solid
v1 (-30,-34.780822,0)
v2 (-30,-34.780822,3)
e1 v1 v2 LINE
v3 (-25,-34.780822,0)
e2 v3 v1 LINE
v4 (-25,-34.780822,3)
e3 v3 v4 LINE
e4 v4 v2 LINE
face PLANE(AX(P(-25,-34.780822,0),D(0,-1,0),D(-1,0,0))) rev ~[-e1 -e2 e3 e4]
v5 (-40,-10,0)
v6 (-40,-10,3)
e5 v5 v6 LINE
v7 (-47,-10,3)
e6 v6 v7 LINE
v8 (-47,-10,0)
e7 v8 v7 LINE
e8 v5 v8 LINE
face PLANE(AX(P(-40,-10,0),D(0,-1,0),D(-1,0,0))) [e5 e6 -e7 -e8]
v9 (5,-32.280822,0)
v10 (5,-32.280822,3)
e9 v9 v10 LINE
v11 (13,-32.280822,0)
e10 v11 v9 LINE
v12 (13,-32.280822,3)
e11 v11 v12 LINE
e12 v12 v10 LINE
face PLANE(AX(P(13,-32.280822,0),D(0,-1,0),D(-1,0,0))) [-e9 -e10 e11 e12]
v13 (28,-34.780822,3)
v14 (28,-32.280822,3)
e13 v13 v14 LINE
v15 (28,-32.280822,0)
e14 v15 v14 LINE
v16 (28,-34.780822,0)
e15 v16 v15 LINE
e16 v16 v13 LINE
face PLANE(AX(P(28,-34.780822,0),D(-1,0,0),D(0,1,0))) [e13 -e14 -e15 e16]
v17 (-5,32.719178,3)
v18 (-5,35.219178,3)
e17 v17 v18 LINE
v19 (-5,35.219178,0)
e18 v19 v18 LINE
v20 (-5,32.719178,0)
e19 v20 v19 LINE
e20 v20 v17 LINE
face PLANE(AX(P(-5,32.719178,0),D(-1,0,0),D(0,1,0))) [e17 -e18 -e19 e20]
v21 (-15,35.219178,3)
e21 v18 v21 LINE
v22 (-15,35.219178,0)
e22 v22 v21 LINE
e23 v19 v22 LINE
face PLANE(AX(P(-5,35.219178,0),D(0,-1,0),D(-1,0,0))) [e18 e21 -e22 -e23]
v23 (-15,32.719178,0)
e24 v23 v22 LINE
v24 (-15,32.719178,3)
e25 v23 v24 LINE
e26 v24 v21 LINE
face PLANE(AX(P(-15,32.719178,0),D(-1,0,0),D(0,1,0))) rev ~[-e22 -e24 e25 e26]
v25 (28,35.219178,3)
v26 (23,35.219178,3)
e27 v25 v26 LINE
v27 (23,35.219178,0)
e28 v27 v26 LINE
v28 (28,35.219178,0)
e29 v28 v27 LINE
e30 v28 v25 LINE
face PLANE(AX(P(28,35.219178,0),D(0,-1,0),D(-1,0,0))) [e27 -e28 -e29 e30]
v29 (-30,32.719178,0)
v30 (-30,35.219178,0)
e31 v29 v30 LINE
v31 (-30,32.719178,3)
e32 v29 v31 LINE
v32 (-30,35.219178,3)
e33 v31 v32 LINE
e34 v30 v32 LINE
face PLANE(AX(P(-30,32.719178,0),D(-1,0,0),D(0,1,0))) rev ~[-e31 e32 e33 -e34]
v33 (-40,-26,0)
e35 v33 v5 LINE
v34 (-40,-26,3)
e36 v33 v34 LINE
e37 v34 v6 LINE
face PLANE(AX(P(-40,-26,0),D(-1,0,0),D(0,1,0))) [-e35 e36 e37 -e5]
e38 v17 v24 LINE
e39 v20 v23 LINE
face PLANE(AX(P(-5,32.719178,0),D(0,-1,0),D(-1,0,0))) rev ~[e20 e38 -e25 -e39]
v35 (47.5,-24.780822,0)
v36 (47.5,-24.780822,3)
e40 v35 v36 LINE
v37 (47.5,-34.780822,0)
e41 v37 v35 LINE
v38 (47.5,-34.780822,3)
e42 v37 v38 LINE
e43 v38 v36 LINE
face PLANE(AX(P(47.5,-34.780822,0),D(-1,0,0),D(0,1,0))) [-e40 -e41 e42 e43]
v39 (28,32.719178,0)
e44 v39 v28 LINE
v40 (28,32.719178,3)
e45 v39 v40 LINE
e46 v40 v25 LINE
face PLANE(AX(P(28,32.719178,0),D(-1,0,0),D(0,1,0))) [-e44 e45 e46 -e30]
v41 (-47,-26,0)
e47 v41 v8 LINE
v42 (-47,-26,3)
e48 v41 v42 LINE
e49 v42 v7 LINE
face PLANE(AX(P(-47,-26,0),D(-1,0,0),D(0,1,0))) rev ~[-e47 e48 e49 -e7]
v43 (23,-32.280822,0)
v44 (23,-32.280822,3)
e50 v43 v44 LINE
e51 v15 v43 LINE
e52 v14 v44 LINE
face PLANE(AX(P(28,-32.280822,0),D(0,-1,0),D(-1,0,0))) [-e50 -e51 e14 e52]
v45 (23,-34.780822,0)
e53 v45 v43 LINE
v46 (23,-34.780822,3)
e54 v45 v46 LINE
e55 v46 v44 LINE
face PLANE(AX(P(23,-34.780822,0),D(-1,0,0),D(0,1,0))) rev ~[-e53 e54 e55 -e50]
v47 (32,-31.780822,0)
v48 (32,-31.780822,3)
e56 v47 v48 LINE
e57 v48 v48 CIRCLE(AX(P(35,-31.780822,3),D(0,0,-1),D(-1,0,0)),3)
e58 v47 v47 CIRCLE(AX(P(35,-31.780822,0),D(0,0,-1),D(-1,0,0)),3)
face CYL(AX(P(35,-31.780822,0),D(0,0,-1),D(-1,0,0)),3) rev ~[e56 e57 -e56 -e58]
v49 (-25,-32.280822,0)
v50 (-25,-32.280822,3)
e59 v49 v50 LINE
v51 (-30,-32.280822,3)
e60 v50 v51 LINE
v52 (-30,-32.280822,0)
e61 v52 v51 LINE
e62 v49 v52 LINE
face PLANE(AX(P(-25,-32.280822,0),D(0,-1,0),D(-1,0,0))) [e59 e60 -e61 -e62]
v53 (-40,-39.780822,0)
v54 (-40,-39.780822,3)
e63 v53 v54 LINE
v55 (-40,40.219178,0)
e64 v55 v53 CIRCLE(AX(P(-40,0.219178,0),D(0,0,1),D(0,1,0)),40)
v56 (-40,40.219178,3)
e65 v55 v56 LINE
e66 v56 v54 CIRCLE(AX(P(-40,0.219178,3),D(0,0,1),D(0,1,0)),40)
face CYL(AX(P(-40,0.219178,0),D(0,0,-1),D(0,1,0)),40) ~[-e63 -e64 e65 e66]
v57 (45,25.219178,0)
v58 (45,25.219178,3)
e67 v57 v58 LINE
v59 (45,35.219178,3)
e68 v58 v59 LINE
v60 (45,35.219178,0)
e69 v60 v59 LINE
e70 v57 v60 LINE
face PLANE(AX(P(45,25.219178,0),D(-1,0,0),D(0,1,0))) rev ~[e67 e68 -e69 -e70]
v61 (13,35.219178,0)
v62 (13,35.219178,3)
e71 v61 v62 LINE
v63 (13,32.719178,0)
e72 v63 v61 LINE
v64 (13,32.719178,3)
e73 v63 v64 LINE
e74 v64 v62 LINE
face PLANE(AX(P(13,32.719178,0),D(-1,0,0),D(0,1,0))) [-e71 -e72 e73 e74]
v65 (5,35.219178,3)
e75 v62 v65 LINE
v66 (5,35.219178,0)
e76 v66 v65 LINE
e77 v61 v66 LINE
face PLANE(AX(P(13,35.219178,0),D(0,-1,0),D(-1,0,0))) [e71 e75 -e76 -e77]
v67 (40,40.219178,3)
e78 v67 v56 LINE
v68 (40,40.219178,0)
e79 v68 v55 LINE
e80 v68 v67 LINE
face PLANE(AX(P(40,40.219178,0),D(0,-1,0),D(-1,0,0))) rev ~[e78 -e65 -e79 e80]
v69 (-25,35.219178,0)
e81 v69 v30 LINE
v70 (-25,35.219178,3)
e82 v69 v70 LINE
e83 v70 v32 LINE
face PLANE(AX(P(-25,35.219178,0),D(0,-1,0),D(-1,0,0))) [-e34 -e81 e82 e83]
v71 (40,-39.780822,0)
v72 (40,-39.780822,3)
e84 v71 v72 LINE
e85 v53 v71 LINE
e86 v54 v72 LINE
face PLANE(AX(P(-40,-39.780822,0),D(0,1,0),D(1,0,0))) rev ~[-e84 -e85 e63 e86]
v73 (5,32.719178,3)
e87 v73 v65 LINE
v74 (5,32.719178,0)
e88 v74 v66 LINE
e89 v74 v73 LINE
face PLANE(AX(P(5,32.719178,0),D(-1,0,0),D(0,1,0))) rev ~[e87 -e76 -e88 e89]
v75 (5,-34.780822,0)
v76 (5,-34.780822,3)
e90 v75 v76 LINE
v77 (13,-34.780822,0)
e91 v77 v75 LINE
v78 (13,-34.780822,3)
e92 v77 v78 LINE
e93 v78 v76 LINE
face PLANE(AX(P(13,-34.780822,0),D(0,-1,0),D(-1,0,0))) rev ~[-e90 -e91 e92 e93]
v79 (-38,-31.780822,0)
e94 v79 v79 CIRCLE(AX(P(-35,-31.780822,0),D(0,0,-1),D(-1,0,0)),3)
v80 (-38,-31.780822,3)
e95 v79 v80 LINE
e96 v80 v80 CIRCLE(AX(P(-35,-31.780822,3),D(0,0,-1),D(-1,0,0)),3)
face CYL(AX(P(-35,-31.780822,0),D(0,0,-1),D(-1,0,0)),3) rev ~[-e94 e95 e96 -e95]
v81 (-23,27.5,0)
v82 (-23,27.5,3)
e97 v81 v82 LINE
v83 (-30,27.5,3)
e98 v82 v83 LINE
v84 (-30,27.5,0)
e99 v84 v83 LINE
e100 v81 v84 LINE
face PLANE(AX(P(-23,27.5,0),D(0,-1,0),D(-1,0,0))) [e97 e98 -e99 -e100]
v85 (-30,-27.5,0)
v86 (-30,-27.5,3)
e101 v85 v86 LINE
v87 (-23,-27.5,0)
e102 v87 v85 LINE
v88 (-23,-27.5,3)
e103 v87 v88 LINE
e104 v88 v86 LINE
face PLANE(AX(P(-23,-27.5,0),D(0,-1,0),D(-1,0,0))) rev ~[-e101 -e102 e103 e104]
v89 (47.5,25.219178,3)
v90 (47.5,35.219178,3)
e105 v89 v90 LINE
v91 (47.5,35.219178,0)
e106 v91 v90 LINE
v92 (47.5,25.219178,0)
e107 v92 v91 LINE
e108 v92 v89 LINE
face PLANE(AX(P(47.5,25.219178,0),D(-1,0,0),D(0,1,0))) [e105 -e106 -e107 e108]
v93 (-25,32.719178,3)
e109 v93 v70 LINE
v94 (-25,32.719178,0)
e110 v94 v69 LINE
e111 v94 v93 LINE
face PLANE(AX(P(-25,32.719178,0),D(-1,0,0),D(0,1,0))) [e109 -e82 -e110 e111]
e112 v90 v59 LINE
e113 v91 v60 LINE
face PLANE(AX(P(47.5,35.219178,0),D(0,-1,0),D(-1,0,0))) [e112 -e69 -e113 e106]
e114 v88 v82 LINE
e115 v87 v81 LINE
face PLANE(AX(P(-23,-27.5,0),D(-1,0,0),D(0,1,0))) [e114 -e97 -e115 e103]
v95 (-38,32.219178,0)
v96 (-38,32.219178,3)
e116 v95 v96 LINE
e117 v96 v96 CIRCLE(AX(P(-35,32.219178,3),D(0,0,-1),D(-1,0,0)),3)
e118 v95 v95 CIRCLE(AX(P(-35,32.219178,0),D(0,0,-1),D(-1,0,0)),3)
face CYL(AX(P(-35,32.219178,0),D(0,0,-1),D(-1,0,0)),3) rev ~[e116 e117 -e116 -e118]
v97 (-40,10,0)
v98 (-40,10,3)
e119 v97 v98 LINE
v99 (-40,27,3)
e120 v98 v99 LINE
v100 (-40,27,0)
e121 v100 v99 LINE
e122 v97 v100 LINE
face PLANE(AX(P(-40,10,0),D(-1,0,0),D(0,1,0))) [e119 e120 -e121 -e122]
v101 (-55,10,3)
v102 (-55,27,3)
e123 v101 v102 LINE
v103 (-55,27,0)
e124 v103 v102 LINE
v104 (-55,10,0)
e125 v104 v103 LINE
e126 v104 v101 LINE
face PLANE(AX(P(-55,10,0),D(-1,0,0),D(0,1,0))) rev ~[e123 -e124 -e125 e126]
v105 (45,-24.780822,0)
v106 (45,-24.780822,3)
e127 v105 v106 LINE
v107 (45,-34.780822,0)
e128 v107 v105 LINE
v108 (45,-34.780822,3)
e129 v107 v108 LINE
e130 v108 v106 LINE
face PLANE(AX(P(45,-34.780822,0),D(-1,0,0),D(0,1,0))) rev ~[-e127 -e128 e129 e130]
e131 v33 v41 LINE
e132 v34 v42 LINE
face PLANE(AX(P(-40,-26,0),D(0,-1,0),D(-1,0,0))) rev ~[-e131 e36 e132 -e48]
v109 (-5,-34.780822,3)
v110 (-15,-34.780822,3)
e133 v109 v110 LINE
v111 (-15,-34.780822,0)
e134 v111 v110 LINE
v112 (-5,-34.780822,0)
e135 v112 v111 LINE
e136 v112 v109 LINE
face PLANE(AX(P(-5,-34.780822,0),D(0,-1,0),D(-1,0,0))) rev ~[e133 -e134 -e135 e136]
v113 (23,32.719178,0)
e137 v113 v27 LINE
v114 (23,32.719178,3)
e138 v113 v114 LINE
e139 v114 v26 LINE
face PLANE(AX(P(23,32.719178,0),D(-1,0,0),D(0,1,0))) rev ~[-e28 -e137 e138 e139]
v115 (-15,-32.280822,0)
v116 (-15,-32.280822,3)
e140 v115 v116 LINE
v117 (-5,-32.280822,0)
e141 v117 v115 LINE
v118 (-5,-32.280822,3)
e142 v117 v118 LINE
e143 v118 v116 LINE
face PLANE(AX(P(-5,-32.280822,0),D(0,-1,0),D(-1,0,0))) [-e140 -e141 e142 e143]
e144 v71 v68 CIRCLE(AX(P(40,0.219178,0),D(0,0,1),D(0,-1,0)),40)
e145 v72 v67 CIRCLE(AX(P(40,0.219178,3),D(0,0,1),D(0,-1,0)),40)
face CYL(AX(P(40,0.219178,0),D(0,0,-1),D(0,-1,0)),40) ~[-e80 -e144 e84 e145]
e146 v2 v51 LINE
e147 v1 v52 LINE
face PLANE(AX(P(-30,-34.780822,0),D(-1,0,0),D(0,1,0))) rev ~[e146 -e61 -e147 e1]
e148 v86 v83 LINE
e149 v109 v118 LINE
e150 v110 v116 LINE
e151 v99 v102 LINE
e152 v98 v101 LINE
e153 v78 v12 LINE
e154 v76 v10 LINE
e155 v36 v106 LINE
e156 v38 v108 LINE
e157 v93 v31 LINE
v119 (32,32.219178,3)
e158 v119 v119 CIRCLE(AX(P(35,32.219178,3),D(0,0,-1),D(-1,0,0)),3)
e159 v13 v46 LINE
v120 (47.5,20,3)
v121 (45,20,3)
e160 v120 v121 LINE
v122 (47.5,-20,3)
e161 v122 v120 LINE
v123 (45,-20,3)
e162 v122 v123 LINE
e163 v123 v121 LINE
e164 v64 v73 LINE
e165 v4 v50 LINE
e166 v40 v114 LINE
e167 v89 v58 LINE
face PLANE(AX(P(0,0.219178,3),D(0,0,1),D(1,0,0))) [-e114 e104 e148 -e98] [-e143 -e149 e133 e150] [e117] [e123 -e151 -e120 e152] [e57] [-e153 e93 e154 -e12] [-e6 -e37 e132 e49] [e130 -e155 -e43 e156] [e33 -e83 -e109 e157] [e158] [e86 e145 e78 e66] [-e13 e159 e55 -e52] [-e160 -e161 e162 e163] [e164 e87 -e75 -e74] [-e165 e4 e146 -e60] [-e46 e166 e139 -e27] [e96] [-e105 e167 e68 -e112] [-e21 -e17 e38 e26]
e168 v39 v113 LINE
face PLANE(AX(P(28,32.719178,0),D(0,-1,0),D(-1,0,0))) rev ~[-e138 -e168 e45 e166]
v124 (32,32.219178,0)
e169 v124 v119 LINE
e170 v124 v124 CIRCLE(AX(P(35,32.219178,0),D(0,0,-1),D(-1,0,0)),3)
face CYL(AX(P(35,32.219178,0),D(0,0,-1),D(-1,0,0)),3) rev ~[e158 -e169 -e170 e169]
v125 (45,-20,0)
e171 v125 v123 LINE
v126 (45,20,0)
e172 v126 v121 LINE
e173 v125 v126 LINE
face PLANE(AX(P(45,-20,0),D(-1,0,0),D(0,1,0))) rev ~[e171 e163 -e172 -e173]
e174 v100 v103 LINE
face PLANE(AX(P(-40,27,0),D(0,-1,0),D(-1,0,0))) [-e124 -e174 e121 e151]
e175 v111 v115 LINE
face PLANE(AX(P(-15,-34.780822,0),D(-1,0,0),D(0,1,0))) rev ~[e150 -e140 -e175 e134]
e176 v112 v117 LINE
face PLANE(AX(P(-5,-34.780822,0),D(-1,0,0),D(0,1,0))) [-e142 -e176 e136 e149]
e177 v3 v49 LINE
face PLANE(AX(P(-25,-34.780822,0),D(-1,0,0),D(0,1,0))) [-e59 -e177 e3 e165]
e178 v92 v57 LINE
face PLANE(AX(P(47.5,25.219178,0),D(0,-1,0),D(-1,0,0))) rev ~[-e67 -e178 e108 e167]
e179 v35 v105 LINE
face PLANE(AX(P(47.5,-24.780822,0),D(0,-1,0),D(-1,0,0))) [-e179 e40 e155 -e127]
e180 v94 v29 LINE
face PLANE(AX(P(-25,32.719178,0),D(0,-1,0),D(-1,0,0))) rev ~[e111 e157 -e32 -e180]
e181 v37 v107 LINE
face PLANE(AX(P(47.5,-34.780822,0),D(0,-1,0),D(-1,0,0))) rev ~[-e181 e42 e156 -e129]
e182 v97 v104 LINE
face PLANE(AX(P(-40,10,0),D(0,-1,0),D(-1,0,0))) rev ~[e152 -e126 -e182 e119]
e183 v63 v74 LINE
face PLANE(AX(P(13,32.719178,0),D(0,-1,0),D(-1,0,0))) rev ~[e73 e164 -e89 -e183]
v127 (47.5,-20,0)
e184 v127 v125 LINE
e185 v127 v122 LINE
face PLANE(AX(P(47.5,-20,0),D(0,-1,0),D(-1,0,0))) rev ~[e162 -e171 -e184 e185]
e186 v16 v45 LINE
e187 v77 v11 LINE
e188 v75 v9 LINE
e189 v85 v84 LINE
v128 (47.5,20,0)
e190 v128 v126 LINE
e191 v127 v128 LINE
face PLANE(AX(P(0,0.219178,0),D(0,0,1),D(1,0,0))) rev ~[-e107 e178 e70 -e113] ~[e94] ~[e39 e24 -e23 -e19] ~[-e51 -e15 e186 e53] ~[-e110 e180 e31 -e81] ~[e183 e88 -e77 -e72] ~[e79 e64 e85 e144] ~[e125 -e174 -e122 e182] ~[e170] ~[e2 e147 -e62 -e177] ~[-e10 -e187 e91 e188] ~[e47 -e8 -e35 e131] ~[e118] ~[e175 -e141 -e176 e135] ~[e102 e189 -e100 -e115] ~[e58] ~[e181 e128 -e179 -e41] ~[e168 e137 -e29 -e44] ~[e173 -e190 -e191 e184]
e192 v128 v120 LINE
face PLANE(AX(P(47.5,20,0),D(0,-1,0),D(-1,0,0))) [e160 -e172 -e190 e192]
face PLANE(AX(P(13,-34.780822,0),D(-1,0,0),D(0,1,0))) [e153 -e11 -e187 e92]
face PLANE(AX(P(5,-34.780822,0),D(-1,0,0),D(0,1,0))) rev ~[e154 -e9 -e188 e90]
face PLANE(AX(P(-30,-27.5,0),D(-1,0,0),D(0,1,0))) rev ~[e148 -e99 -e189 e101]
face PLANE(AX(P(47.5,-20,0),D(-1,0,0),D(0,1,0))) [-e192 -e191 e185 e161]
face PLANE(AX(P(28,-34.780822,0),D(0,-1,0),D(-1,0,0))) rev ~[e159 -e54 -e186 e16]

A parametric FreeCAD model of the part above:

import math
import FreeCAD as App
import Part
import Sketcher
Q = App.Units.Quantity

doc = App.newDocument("Part")
body = doc.addObject("PartDesign::Body", "Body")

sketch1 = body.newObject("Sketcher::SketchObject", "Sketch")
sketch1.AttachmentSupport = (doc.getObject("XY_Plane"), [""])
sketch1.MapMode = "FlatFace"
sketch1.addGeometry([
    Part.LineSegment(App.Vector(40, 40, 0), App.Vector(-40, 40, 0)),
    Part.ArcOfCircle(Part.Circle(App.Vector(-40, 0, 0), App.Vector(0, 0, 1), 40), math.radians(90), math.radians(270)),
    Part.LineSegment(App.Vector(-40, -40, 0), App.Vector(40, -40, 0)),
    Part.ArcOfCircle(Part.Circle(App.Vector(40, 0, 0), App.Vector(0, 0, 1), 40), math.radians(-90), math.radians(90)),
], False)
sketch1.addConstraint([
    Sketcher.Constraint("Tangent", 0, 2, 1, 1),
    Sketcher.Constraint("Tangent", 1, 2, 2, 1),
    Sketcher.Constraint("Tangent", 2, 2, 3, 1),
    Sketcher.Constraint("Tangent", 3, 2, 0, 1),
    Sketcher.Constraint("Horizontal", 0),
    Sketcher.Constraint("Horizontal", 2),
    Sketcher.Constraint("Radius", 1, Q("40 mm")),
    Sketcher.Constraint("DistanceX", 0, 2, 0, 1, Q("80 mm")),
    Sketcher.Constraint("DistanceX", 1, 3, -1, 1, Q("40 mm")),
    Sketcher.Constraint("DistanceY", -1, 1, 1, 3, Q("0.219178 mm")),
])
pad1 = body.newObject("PartDesign::Pad", "Pad")
pad1.Profile = sketch1
pad1.Length = 3

sketch2 = body.newObject("Sketcher::SketchObject", "Sketch001")
sketch2.AttachmentSupport = (doc.getObject("XY_Plane"), [""])
sketch2.MapMode = "FlatFace"
sketch2.addGeometry(Part.Circle(App.Vector(35, 32.2, 0), App.Vector(0, 0, 1), 3), False)
sketch2.addConstraint([
    Sketcher.Constraint("Diameter", 0, Q("6 mm")),
    Sketcher.Constraint("DistanceX", -1, 1, 0, 3, Q("35 mm")),
    Sketcher.Constraint("DistanceY", -1, 1, 0, 3, Q("32.219178 mm")),
])
pocket1 = body.newObject("PartDesign::Pocket", "Pocket")
pocket1.Profile = sketch2
pocket1.Type = "UpToFirst"
pocket1.Reversed = True

sketch3 = body.newObject("Sketcher::SketchObject", "Sketch002")
sketch3.AttachmentSupport = (doc.getObject("XY_Plane"), [""])
sketch3.MapMode = "FlatFace"
sketch3.addGeometry(Part.Circle(App.Vector(35, -31.8, 0), App.Vector(0, 0, 1), 3), False)
sketch3.addConstraint([
    Sketcher.Constraint("Diameter", 0, Q("6 mm")),
    Sketcher.Constraint("DistanceX", -1, 1, 0, 3, Q("35 mm")),
    Sketcher.Constraint("DistanceY", 0, 3, -1, 1, Q("31.780822 mm")),
])
pocket2 = body.newObject("PartDesign::Pocket", "Pocket001")
pocket2.Profile = sketch3
pocket2.Type = "UpToFirst"
pocket2.Reversed = True

sketch4 = body.newObject("Sketcher::SketchObject", "Sketch003")
sketch4.AttachmentSupport = (doc.getObject("XY_Plane"), [""])
sketch4.MapMode = "FlatFace"
sketch4.addGeometry(Part.Circle(App.Vector(-35, 32.2, 0), App.Vector(0, 0, 1), 3), False)
sketch4.addConstraint([
    Sketcher.Constraint("Diameter", 0, Q("6 mm")),
    Sketcher.Constraint("DistanceX", 0, 3, -1, 1, Q("35 mm")),
    Sketcher.Constraint("DistanceY", -1, 1, 0, 3, Q("32.219178 mm")),
])
pocket3 = body.newObject("PartDesign::Pocket", "Pocket002")
pocket3.Profile = sketch4
pocket3.Type = "UpToFirst"
pocket3.Reversed = True

sketch5 = body.newObject("Sketcher::SketchObject", "Sketch004")
sketch5.AttachmentSupport = (doc.getObject("XY_Plane"), [""])
sketch5.MapMode = "FlatFace"
sketch5.addGeometry(Part.Circle(App.Vector(-35, -31.8, 0), App.Vector(0, 0, 1), 3), False)
sketch5.addConstraint([
    Sketcher.Constraint("Diameter", 0, Q("6 mm")),
    Sketcher.Constraint("DistanceX", 0, 3, -1, 1, Q("35 mm")),
    Sketcher.Constraint("DistanceY", 0, 3, -1, 1, Q("31.780822 mm")),
])
pocket4 = body.newObject("PartDesign::Pocket", "Pocket003")
pocket4.Profile = sketch5
pocket4.Type = "UpToFirst"
pocket4.Reversed = True

sketch6 = body.newObject("Sketcher::SketchObject", "Sketch005")
sketch6.AttachmentSupport = (doc.getObject("XY_Plane"), [""])
sketch6.MapMode = "FlatFace"
sketch6.addGeometry([
    Part.LineSegment(App.Vector(-23, 28, 0), App.Vector(-23, -28, 0)),
    Part.LineSegment(App.Vector(-23, -28, 0), App.Vector(-30, -28, 0)),
    Part.LineSegment(App.Vector(-30, -28, 0), App.Vector(-30, 28, 0)),
    Part.LineSegment(App.Vector(-30, 28, 0), App.Vector(-23, 28, 0)),
], False)
sketch6.addConstraint([
    Sketcher.Constraint("Coincident", 0, 2, 1, 1),
    Sketcher.Constraint("Coincident", 1, 2, 2, 1),
    Sketcher.Constraint("Coincident", 2, 2, 3, 1),
    Sketcher.Constraint("Coincident", 3, 2, 0, 1),
    Sketcher.Constraint("Vertical", 0),
    Sketcher.Constraint("Horizontal", 1),
    Sketcher.Constraint("Vertical", 2),
    Sketcher.Constraint("Horizontal", 3),
    Sketcher.Constraint("DistanceX", 1, 2, 1, 1, Q("7 mm")),
    Sketcher.Constraint("DistanceY", 0, 2, 0, 1, Q("55 mm")),
    Sketcher.Constraint("DistanceX", 0, 2, -1, 1, Q("23 mm")),
    Sketcher.Constraint("DistanceY", 0, 2, -1, 1, Q("27.5 mm")),
])
pocket5 = body.newObject("PartDesign::Pocket", "Pocket004")
pocket5.Profile = sketch6
pocket5.Type = "UpToFirst"
pocket5.Reversed = True

sketch7 = body.newObject("Sketcher::SketchObject", "Sketch006")
sketch7.AttachmentSupport = (doc.getObject("XY_Plane"), [""])
sketch7.MapMode = "FlatFace"
sketch7.addGeometry([
    Part.LineSegment(App.Vector(47.5, 20, 0), App.Vector(47.5, -20, 0)),
    Part.LineSegment(App.Vector(47.5, -20, 0), App.Vector(45, -20, 0)),
    Part.LineSegment(App.Vector(45, -20, 0), App.Vector(45, 20, 0)),
    Part.LineSegment(App.Vector(45, 20, 0), App.Vector(47.5, 20, 0)),
], False)
sketch7.addConstraint([
    Sketcher.Constraint("Coincident", 0, 2, 1, 1),
    Sketcher.Constraint("Coincident", 1, 2, 2, 1),
    Sketcher.Constraint("Coincident", 2, 2, 3, 1),
    Sketcher.Constraint("Coincident", 3, 2, 0, 1),
    Sketcher.Constraint("Vertical", 0),
    Sketcher.Constraint("Horizontal", 1),
    Sketcher.Constraint("Vertical", 2),
    Sketcher.Constraint("Horizontal", 3),
    Sketcher.Constraint("DistanceY", 0, 2, 0, 1, Q("40 mm")),
    Sketcher.Constraint("DistanceX", 1, 2, 1, 1, Q("2.5 mm")),
    Sketcher.Constraint("DistanceY", 0, 2, -1, 1, Q("20 mm")),
    Sketcher.Constraint("DistanceX", -1, 1, 1, 2, Q("45 mm")),
])
pocket6 = body.newObject("PartDesign::Pocket", "Pocket005")
pocket6.Profile = sketch7
pocket6.Type = "UpToFirst"
pocket6.Reversed = True

sketch8 = body.newObject("Sketcher::SketchObject", "Sketch007")
sketch8.AttachmentSupport = (doc.getObject("XY_Plane"), [""])
sketch8.MapMode = "FlatFace"
sketch8.addGeometry([
    Part.LineSegment(App.Vector(47.5, 35.2, 0), App.Vector(47.5, 25.2, 0)),
    Part.LineSegment(App.Vector(47.5, 25.2, 0), App.Vector(45, 25.2, 0)),
    Part.LineSegment(App.Vector(45, 25.2, 0), App.Vector(45, 35.2, 0)),
    Part.LineSegment(App.Vector(45, 35.2, 0), App.Vector(47.5, 35.2, 0)),
], False)
sketch8.addConstraint([
    Sketcher.Constraint("Coincident", 0, 2, 1, 1),
    Sketcher.Constraint("Coincident", 1, 2, 2, 1),
    Sketcher.Constraint("Coincident", 2, 2, 3, 1),
    Sketcher.Constraint("Coincident", 3, 2, 0, 1),
    Sketcher.Constraint("Vertical", 0),
    Sketcher.Constraint("Horizontal", 1),
    Sketcher.Constraint("Vertical", 2),
    Sketcher.Constraint("Horizontal", 3),
    Sketcher.Constraint("DistanceY", 0, 2, 0, 1, Q("10 mm")),
    Sketcher.Constraint("DistanceX", 1, 2, 1, 1, Q("2.5 mm")),
    Sketcher.Constraint("DistanceX", -1, 1, 1, 2, Q("45 mm")),
    Sketcher.Constraint("DistanceY", -1, 1, 0, 2, Q("25.219178 mm")),
])
pocket7 = body.newObject("PartDesign::Pocket", "Pocket006")
pocket7.Profile = sketch8
pocket7.Type = "UpToFirst"
pocket7.Reversed = True

sketch9 = body.newObject("Sketcher::SketchObject", "Sketch008")
sketch9.AttachmentSupport = (doc.getObject("XY_Plane"), [""])
sketch9.MapMode = "FlatFace"
sketch9.addGeometry([
    Part.LineSegment(App.Vector(47.5, -24.8, 0), App.Vector(47.5, -34.8, 0)),
    Part.LineSegment(App.Vector(47.5, -34.8, 0), App.Vector(45, -34.8, 0)),
    Part.LineSegment(App.Vector(45, -34.8, 0), App.Vector(45, -24.8, 0)),
    Part.LineSegment(App.Vector(45, -24.8, 0), App.Vector(47.5, -24.8, 0)),
], False)
sketch9.addConstraint([
    Sketcher.Constraint("Coincident", 0, 2, 1, 1),
    Sketcher.Constraint("Coincident", 1, 2, 2, 1),
    Sketcher.Constraint("Coincident", 2, 2, 3, 1),
    Sketcher.Constraint("Coincident", 3, 2, 0, 1),
    Sketcher.Constraint("Vertical", 0),
    Sketcher.Constraint("Horizontal", 1),
    Sketcher.Constraint("Vertical", 2),
    Sketcher.Constraint("Horizontal", 3),
    Sketcher.Constraint("DistanceY", 0, 2, 0, 1, Q("10 mm")),
    Sketcher.Constraint("DistanceX", 1, 2, 1, 1, Q("2.5 mm")),
    Sketcher.Constraint("DistanceX", -1, 1, 1, 2, Q("45 mm")),
    Sketcher.Constraint("DistanceY", 0, 2, -1, 1, Q("34.780822 mm")),
])
pocket8 = body.newObject("PartDesign::Pocket", "Pocket007")
pocket8.Profile = sketch9
pocket8.Type = "UpToFirst"
pocket8.Reversed = True

sketch10 = body.newObject("Sketcher::SketchObject", "Sketch009")
sketch10.AttachmentSupport = (doc.getObject("XY_Plane"), [""])
sketch10.MapMode = "FlatFace"
sketch10.addGeometry([
    Part.LineSegment(App.Vector(-25, 35.2, 0), App.Vector(-25, 32.7, 0)),
    Part.LineSegment(App.Vector(-25, 32.7, 0), App.Vector(-30, 32.7, 0)),
    Part.LineSegment(App.Vector(-30, 32.7, 0), App.Vector(-30, 35.2, 0)),
    Part.LineSegment(App.Vector(-30, 35.2, 0), App.Vector(-25, 35.2, 0)),
], False)
sketch10.addConstraint([
    Sketcher.Constraint("Coincident", 0, 2, 1, 1),
    Sketcher.Constraint("Coincident", 1, 2, 2, 1),
    Sketcher.Constraint("Coincident", 2, 2, 3, 1),
    Sketcher.Constraint("Coincident", 3, 2, 0, 1),
    Sketcher.Constraint("Vertical", 0),
    Sketcher.Constraint("Horizontal", 1),
    Sketcher.Constraint("Vertical", 2),
    Sketcher.Constraint("Horizontal", 3),
    Sketcher.Constraint("DistanceX", 1, 2, 1, 1, Q("5 mm")),
    Sketcher.Constraint("DistanceY", 0, 2, 0, 1, Q("2.5 mm")),
    Sketcher.Constraint("DistanceX", 0, 2, -1, 1, Q("25 mm")),
    Sketcher.Constraint("DistanceY", -1, 1, 0, 2, Q("32.719178 mm")),
])
pocket9 = body.newObject("PartDesign::Pocket", "Pocket008")
pocket9.Profile = sketch10
pocket9.Type = "UpToFirst"
pocket9.Reversed = True

sketch11 = body.newObject("Sketcher::SketchObject", "Sketch010")
sketch11.AttachmentSupport = (doc.getObject("XY_Plane"), [""])
sketch11.MapMode = "FlatFace"
sketch11.addGeometry([
    Part.LineSegment(App.Vector(-25, -32.3, 0), App.Vector(-25, -34.8, 0)),
    Part.LineSegment(App.Vector(-25, -34.8, 0), App.Vector(-30, -34.8, 0)),
    Part.LineSegment(App.Vector(-30, -34.8, 0), App.Vector(-30, -32.3, 0)),
    Part.LineSegment(App.Vector(-30, -32.3, 0), App.Vector(-25, -32.3, 0)),
], False)
sketch11.addConstraint([
    Sketcher.Constraint("Coincident", 0, 2, 1, 1),
    Sketcher.Constraint("Coincident", 1, 2, 2, 1),
    Sketcher.Constraint("Coincident", 2, 2, 3, 1),
    Sketcher.Constraint("Coincident", 3, 2, 0, 1),
    Sketcher.Constraint("Vertical", 0),
    Sketcher.Constraint("Horizontal", 1),
    Sketcher.Constraint("Vertical", 2),
    Sketcher.Constraint("Horizontal", 3),
    Sketcher.Constraint("DistanceX", 1, 2, 1, 1, Q("5 mm")),
    Sketcher.Constraint("DistanceY", 0, 2, 0, 1, Q("2.5 mm")),
    Sketcher.Constraint("DistanceX", 0, 2, -1, 1, Q("25 mm")),
    Sketcher.Constraint("DistanceY", 0, 2, -1, 1, Q("34.780822 mm")),
])
pocket10 = body.newObject("PartDesign::Pocket", "Pocket009")
pocket10.Profile = sketch11
pocket10.Type = "UpToFirst"
pocket10.Reversed = True

sketch12 = body.newObject("Sketcher::SketchObject", "Sketch011")
sketch12.AttachmentSupport = (doc.getObject("XY_Plane"), [""])
sketch12.MapMode = "FlatFace"
sketch12.addGeometry([
    Part.LineSegment(App.Vector(28, 35.2, 0), App.Vector(28, 32.7, 0)),
    Part.LineSegment(App.Vector(28, 32.7, 0), App.Vector(23, 32.7, 0)),
    Part.LineSegment(App.Vector(23, 32.7, 0), App.Vector(23, 35.2, 0)),
    Part.LineSegment(App.Vector(23, 35.2, 0), App.Vector(28, 35.2, 0)),
], False)
sketch12.addConstraint([
    Sketcher.Constraint("Coincident", 0, 2, 1, 1),
    Sketcher.Constraint("Coincident", 1, 2, 2, 1),
    Sketcher.Constraint("Coincident", 2, 2, 3, 1),
    Sketcher.Constraint("Coincident", 3, 2, 0, 1),
    Sketcher.Constraint("Vertical", 0),
    Sketcher.Constraint("Horizontal", 1),
    Sketcher.Constraint("Vertical", 2),
    Sketcher.Constraint("Horizontal", 3),
    Sketcher.Constraint("DistanceX", 1, 2, 1, 1, Q("5 mm")),
    Sketcher.Constraint("DistanceY", 0, 2, 0, 1, Q("2.5 mm")),
    Sketcher.Constraint("DistanceX", -1, 1, 0, 2, Q("28 mm")),
    Sketcher.Constraint("DistanceY", -1, 1, 0, 2, Q("32.719178 mm")),
])
pocket11 = body.newObject("PartDesign::Pocket", "Pocket010")
pocket11.Profile = sketch12
pocket11.Type = "UpToFirst"
pocket11.Reversed = True

sketch13 = body.newObject("Sketcher::SketchObject", "Sketch012")
sketch13.AttachmentSupport = (doc.getObject("XY_Plane"), [""])
sketch13.MapMode = "FlatFace"
sketch13.addGeometry([
    Part.LineSegment(App.Vector(13, 35.2, 0), App.Vector(13, 32.7, 0)),
    Part.LineSegment(App.Vector(13, 32.7, 0), App.Vector(5, 32.7, 0)),
    Part.LineSegment(App.Vector(5, 32.7, 0), App.Vector(5, 35.2, 0)),
    Part.LineSegment(App.Vector(5, 35.2, 0), App.Vector(13, 35.2, 0)),
], False)
sketch13.addConstraint([
    Sketcher.Constraint("Coincident", 0, 2, 1, 1),
    Sketcher.Constraint("Coincident", 1, 2, 2, 1),
    Sketcher.Constraint("Coincident", 2, 2, 3, 1),
    Sketcher.Constraint("Coincident", 3, 2, 0, 1),
    Sketcher.Constraint("Vertical", 0),
    Sketcher.Constraint("Horizontal", 1),
    Sketcher.Constraint("Vertical", 2),
    Sketcher.Constraint("Horizontal", 3),
    Sketcher.Constraint("DistanceX", 1, 2, 1, 1, Q("8 mm")),
    Sketcher.Constraint("DistanceY", 0, 2, 0, 1, Q("2.5 mm")),
    Sketcher.Constraint("DistanceX", -1, 1, 0, 2, Q("13 mm")),
    Sketcher.Constraint("DistanceY", -1, 1, 0, 2, Q("32.719178 mm")),
])
pocket12 = body.newObject("PartDesign::Pocket", "Pocket011")
pocket12.Profile = sketch13
pocket12.Type = "UpToFirst"
pocket12.Reversed = True

sketch14 = body.newObject("Sketcher::SketchObject", "Sketch013")
sketch14.AttachmentSupport = (doc.getObject("XY_Plane"), [""])
sketch14.MapMode = "FlatFace"
sketch14.addGeometry([
    Part.LineSegment(App.Vector(-5, 35.2, 0), App.Vector(-5, 32.7, 0)),
    Part.LineSegment(App.Vector(-5, 32.7, 0), App.Vector(-15, 32.7, 0)),
    Part.LineSegment(App.Vector(-15, 32.7, 0), App.Vector(-15, 35.2, 0)),
    Part.LineSegment(App.Vector(-15, 35.2, 0), App.Vector(-5, 35.2, 0)),
], False)
sketch14.addConstraint([
    Sketcher.Constraint("Coincident", 0, 2, 1, 1),
    Sketcher.Constraint("Coincident", 1, 2, 2, 1),
    Sketcher.Constraint("Coincident", 2, 2, 3, 1),
    Sketcher.Constraint("Coincident", 3, 2, 0, 1),
    Sketcher.Constraint("Vertical", 0),
    Sketcher.Constraint("Horizontal", 1),
    Sketcher.Constraint("Vertical", 2),
    Sketcher.Constraint("Horizontal", 3),
    Sketcher.Constraint("DistanceX", 1, 2, 1, 1, Q("10 mm")),
    Sketcher.Constraint("DistanceY", 0, 2, 0, 1, Q("2.5 mm")),
    Sketcher.Constraint("DistanceX", 0, 2, -1, 1, Q("5 mm")),
    Sketcher.Constraint("DistanceY", -1, 1, 0, 2, Q("32.719178 mm")),
])
pocket13 = body.newObject("PartDesign::Pocket", "Pocket012")
pocket13.Profile = sketch14
pocket13.Type = "UpToFirst"
pocket13.Reversed = True

sketch15 = body.newObject("Sketcher::SketchObject", "Sketch014")
sketch15.AttachmentSupport = (doc.getObject("XY_Plane"), [""])
sketch15.MapMode = "FlatFace"
sketch15.addGeometry([
    Part.LineSegment(App.Vector(28, -32.3, 0), App.Vector(28, -34.8, 0)),
    Part.LineSegment(App.Vector(28, -34.8, 0), App.Vector(23, -34.8, 0)),
    Part.LineSegment(App.Vector(23, -34.8, 0), App.Vector(23, -32.3, 0)),
    Part.LineSegment(App.Vector(23, -32.3, 0), App.Vector(28, -32.3, 0)),
], False)
sketch15.addConstraint([
    Sketcher.Constraint("Coincident", 0, 2, 1, 1),
    Sketcher.Constraint("Coincident", 1, 2, 2, 1),
    Sketcher.Constraint("Coincident", 2, 2, 3, 1),
    Sketcher.Constraint("Coincident", 3, 2, 0, 1),
    Sketcher.Constraint("Vertical", 0),
    Sketcher.Constraint("Horizontal", 1),
    Sketcher.Constraint("Vertical", 2),
    Sketcher.Constraint("Horizontal", 3),
    Sketcher.Constraint("DistanceX", 1, 2, 1, 1, Q("5 mm")),
    Sketcher.Constraint("DistanceY", 0, 2, 0, 1, Q("2.5 mm")),
    Sketcher.Constraint("DistanceX", -1, 1, 0, 2, Q("28 mm")),
    Sketcher.Constraint("DistanceY", 0, 2, -1, 1, Q("34.780822 mm")),
])
pocket14 = body.newObject("PartDesign::Pocket", "Pocket013")
pocket14.Profile = sketch15
pocket14.Type = "UpToFirst"
pocket14.Reversed = True

sketch16 = body.newObject("Sketcher::SketchObject", "Sketch015")
sketch16.AttachmentSupport = (doc.getObject("XY_Plane"), [""])
sketch16.MapMode = "FlatFace"
sketch16.addGeometry([
    Part.LineSegment(App.Vector(13, -32.3, 0), App.Vector(13, -34.8, 0)),
    Part.LineSegment(App.Vector(13, -34.8, 0), App.Vector(5, -34.8, 0)),
    Part.LineSegment(App.Vector(5, -34.8, 0), App.Vector(5, -32.3, 0)),
    Part.LineSegment(App.Vector(5, -32.3, 0), App.Vector(13, -32.3, 0)),
], False)
sketch16.addConstraint([
    Sketcher.Constraint("Coincident", 0, 2, 1, 1),
    Sketcher.Constraint("Coincident", 1, 2, 2, 1),
    Sketcher.Constraint("Coincident", 2, 2, 3, 1),
    Sketcher.Constraint("Coincident", 3, 2, 0, 1),
    Sketcher.Constraint("Vertical", 0),
    Sketcher.Constraint("Horizontal", 1),
    Sketcher.Constraint("Vertical", 2),
    Sketcher.Constraint("Horizontal", 3),
    Sketcher.Constraint("DistanceX", 1, 2, 1, 1, Q("8 mm")),
    Sketcher.Constraint("DistanceY", 0, 2, 0, 1, Q("2.5 mm")),
    Sketcher.Constraint("DistanceX", -1, 1, 0, 2, Q("13 mm")),
    Sketcher.Constraint("DistanceY", 0, 2, -1, 1, Q("34.780822 mm")),
])
pocket15 = body.newObject("PartDesign::Pocket", "Pocket014")
pocket15.Profile = sketch16
pocket15.Type = "UpToFirst"
pocket15.Reversed = True

sketch17 = body.newObject("Sketcher::SketchObject", "Sketch016")
sketch17.AttachmentSupport = (doc.getObject("XY_Plane"), [""])
sketch17.MapMode = "FlatFace"
sketch17.addGeometry([
    Part.LineSegment(App.Vector(-5, -32.3, 0), App.Vector(-5, -34.8, 0)),
    Part.LineSegment(App.Vector(-5, -34.8, 0), App.Vector(-15, -34.8, 0)),
    Part.LineSegment(App.Vector(-15, -34.8, 0), App.Vector(-15, -32.3, 0)),
    Part.LineSegment(App.Vector(-15, -32.3, 0), App.Vector(-5, -32.3, 0)),
], False)
sketch17.addConstraint([
    Sketcher.Constraint("Coincident", 0, 2, 1, 1),
    Sketcher.Constraint("Coincident", 1, 2, 2, 1),
    Sketcher.Constraint("Coincident", 2, 2, 3, 1),
    Sketcher.Constraint("Coincident", 3, 2, 0, 1),
    Sketcher.Constraint("Vertical", 0),
    Sketcher.Constraint("Horizontal", 1),
    Sketcher.Constraint("Vertical", 2),
    Sketcher.Constraint("Horizontal", 3),
    Sketcher.Constraint("DistanceX", 1, 2, 1, 1, Q("10 mm")),
    Sketcher.Constraint("DistanceY", 0, 2, 0, 1, Q("2.5 mm")),
    Sketcher.Constraint("DistanceX", 0, 2, -1, 1, Q("5 mm")),
    Sketcher.Constraint("DistanceY", 0, 2, -1, 1, Q("34.780822 mm")),
])
pocket16 = body.newObject("PartDesign::Pocket", "Pocket015")
pocket16.Profile = sketch17
pocket16.Type = "UpToFirst"
pocket16.Reversed = True

sketch18 = body.newObject("Sketcher::SketchObject", "Sketch017")
sketch18.AttachmentSupport = (doc.getObject("XY_Plane"), [""])
sketch18.MapMode = "FlatFace"
sketch18.addGeometry([
    Part.LineSegment(App.Vector(-40, -10, 0), App.Vector(-40, -26, 0)),
    Part.LineSegment(App.Vector(-40, -26, 0), App.Vector(-47, -26, 0)),
    Part.LineSegment(App.Vector(-47, -26, 0), App.Vector(-47, -10, 0)),
    Part.LineSegment(App.Vector(-47, -10, 0), App.Vector(-40, -10, 0)),
], False)
sketch18.addConstraint([
    Sketcher.Constraint("Coincident", 0, 2, 1, 1),
    Sketcher.Constraint("Coincident", 1, 2, 2, 1),
    Sketcher.Constraint("Coincident", 2, 2, 3, 1),
    Sketcher.Constraint("Coincident", 3, 2, 0, 1),
    Sketcher.Constraint("Vertical", 0),
    Sketcher.Constraint("Horizontal", 1),
    Sketcher.Constraint("Vertical", 2),
    Sketcher.Constraint("Horizontal", 3),
    Sketcher.Constraint("DistanceX", 1, 2, 1, 1, Q("7 mm")),
    Sketcher.Constraint("DistanceY", 0, 2, 0, 1, Q("16 mm")),
    Sketcher.Constraint("DistanceX", 0, 2, -1, 1, Q("40 mm")),
    Sketcher.Constraint("DistanceY", 0, 2, -1, 1, Q("26 mm")),
])
pocket17 = body.newObject("PartDesign::Pocket", "Pocket016")
pocket17.Profile = sketch18
pocket17.Type = "UpToFirst"
pocket17.Reversed = True

sketch19 = body.newObject("Sketcher::SketchObject", "Sketch018")
sketch19.AttachmentSupport = (doc.getObject("XY_Plane"), [""])
sketch19.MapMode = "FlatFace"
sketch19.addGeometry([
    Part.LineSegment(App.Vector(-40, 27, 0), App.Vector(-40, 10, 0)),
    Part.LineSegment(App.Vector(-40, 10, 0), App.Vector(-55, 10, 0)),
    Part.LineSegment(App.Vector(-55, 10, 0), App.Vector(-55, 27, 0)),
    Part.LineSegment(App.Vector(-55, 27, 0), App.Vector(-40, 27, 0)),
], False)
sketch19.addConstraint([
    Sketcher.Constraint("Coincident", 0, 2, 1, 1),
    Sketcher.Constraint("Coincident", 1, 2, 2, 1),
    Sketcher.Constraint("Coincident", 2, 2, 3, 1),
    Sketcher.Constraint("Coincident", 3, 2, 0, 1),
    Sketcher.Constraint("Vertical", 0),
    Sketcher.Constraint("Horizontal", 1),
    Sketcher.Constraint("Vertical", 2),
    Sketcher.Constraint("Horizontal", 3),
    Sketcher.Constraint("DistanceX", 1, 2, 1, 1, Q("15 mm")),
    Sketcher.Constraint("DistanceY", 0, 2, 0, 1, Q("17 mm")),
    Sketcher.Constraint("DistanceX", 0, 2, -1, 1, Q("40 mm")),
    Sketcher.Constraint("DistanceY", -1, 1, 0, 2, Q("10 mm")),
])
pocket18 = body.newObject("PartDesign::Pocket", "Pocket017")
pocket18.Profile = sketch19
pocket18.Type = "UpToFirst"
pocket18.Reversed = True

doc.recompute()
